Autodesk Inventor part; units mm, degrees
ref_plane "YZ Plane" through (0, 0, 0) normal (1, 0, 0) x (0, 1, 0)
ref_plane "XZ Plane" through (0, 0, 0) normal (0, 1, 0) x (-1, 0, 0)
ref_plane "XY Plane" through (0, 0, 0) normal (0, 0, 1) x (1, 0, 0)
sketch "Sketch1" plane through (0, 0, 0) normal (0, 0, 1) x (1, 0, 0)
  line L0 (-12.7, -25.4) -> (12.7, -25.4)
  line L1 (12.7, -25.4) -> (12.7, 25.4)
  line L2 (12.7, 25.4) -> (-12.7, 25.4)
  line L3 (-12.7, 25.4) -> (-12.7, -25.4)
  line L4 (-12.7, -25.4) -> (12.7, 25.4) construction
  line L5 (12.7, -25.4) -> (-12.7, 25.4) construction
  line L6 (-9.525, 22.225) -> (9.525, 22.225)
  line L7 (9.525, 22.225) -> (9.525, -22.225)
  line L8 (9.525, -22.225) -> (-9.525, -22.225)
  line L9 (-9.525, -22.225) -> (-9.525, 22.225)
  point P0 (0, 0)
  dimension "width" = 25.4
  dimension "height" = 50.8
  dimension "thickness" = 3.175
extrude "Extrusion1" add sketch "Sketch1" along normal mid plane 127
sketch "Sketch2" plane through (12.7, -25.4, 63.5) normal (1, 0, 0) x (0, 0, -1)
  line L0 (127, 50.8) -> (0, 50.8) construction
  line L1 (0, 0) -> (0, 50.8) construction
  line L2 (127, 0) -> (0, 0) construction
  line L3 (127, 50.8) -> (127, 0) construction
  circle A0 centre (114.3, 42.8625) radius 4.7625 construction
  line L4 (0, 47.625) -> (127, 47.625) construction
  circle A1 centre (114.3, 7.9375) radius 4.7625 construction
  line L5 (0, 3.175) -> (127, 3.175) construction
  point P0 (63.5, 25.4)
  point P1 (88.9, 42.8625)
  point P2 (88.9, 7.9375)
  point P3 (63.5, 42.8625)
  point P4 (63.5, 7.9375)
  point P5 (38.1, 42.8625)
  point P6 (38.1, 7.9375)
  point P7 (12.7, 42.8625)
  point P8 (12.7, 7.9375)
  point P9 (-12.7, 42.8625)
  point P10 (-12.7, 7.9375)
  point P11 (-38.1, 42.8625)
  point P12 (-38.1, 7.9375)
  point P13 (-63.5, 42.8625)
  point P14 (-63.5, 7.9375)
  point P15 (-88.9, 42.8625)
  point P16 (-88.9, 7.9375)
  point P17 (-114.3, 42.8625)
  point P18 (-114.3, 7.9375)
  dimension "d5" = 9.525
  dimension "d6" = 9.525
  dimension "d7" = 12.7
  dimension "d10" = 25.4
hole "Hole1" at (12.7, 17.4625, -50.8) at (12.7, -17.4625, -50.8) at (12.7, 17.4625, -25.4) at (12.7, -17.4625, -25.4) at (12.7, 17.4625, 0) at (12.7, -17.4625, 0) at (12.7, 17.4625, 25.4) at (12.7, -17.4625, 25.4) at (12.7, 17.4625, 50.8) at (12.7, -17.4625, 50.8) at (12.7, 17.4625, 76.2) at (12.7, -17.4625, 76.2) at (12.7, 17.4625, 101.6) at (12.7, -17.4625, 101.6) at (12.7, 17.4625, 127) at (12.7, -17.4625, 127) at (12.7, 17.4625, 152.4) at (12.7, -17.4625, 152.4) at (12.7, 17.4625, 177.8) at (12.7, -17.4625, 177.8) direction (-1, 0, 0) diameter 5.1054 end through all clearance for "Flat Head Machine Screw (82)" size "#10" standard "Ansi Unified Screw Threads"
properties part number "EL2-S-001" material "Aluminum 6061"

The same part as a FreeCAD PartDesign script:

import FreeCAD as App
import Part
import Sketcher
Q = App.Units.Quantity

doc = App.newDocument("Part")
body = doc.addObject("PartDesign::Body", "Body")

# Sketch on XY plane
sketch1 = body.newObject("Sketcher::SketchObject", "Sketch")
sketch1.AttachmentSupport = (doc.getObject("XY_Plane"), [""])
sketch1.MapMode = "FlatFace"
sketch1.addGeometry(Part.LineSegment(App.Vector(-13, 25, 0), App.Vector(-13, -25, 0)), False)
sketch1.addGeometry(Part.LineSegment(App.Vector(-13, -25, 0), App.Vector(13, -25, 0)), False)
sketch1.addGeometry(Part.LineSegment(App.Vector(13, -25, 0), App.Vector(13, 25, 0)), False)
sketch1.addGeometry(Part.LineSegment(App.Vector(13, 25, 0), App.Vector(-13, 25, 0)), False)
sketch1.addGeometry(Part.LineSegment(App.Vector(-10, -22, 0), App.Vector(-10, 22, 0)), False)
sketch1.addGeometry(Part.LineSegment(App.Vector(-10, 22, 0), App.Vector(10, 22, 0)), False)
sketch1.addGeometry(Part.LineSegment(App.Vector(10, 22, 0), App.Vector(10, -22, 0)), False)
sketch1.addGeometry(Part.LineSegment(App.Vector(10, -22, 0), App.Vector(-10, -22, 0)), False)
sketch1.addConstraint(Sketcher.Constraint("Coincident", 0, 2, 1, 1))
sketch1.addConstraint(Sketcher.Constraint("Coincident", 1, 2, 2, 1))
sketch1.addConstraint(Sketcher.Constraint("Coincident", 2, 2, 3, 1))
sketch1.addConstraint(Sketcher.Constraint("Coincident", 3, 2, 0, 1))
sketch1.addConstraint(Sketcher.Constraint("Coincident", 4, 2, 5, 1))
sketch1.addConstraint(Sketcher.Constraint("Coincident", 5, 2, 6, 1))
sketch1.addConstraint(Sketcher.Constraint("Coincident", 6, 2, 7, 1))
sketch1.addConstraint(Sketcher.Constraint("Coincident", 7, 2, 4, 1))
sketch1.addConstraint(Sketcher.Constraint("Vertical", 0))
sketch1.addConstraint(Sketcher.Constraint("Horizontal", 1))
sketch1.addConstraint(Sketcher.Constraint("Vertical", 2))
sketch1.addConstraint(Sketcher.Constraint("Horizontal", 3))
sketch1.addConstraint(Sketcher.Constraint("Vertical", 4))
sketch1.addConstraint(Sketcher.Constraint("Horizontal", 5))
sketch1.addConstraint(Sketcher.Constraint("Vertical", 6))
sketch1.addConstraint(Sketcher.Constraint("Horizontal", 7))
sketch1.addConstraint(Sketcher.Constraint("Symmetric", 0, 2, 2, 2, -1, 1))
sketch1.addConstraint(Sketcher.Constraint("Symmetric", 4, 2, 6, 2, -1, 1))
sketch1.addConstraint(Sketcher.Constraint("DistanceX", 1, 1, 1, 2, Q("1 in")))
sketch1.addConstraint(Sketcher.Constraint("DistanceY", 0, 2, 0, 1, Q("2 in")))
sketch1.addConstraint(Sketcher.Constraint("DistanceX", 3, 2, 4, 2, Q("0.125 in")))
sketch1.addConstraint(Sketcher.Constraint("DistanceY", 4, 2, 3, 2, Q("0.125 in")))
pad1 = body.newObject("PartDesign::Pad", "Pad")
pad1.Profile = sketch1
pad1.Length = Q("5 in")
pad1.Midplane = True

# Sketch on YZ plane
sketch2 = body.newObject("Sketcher::SketchObject", "Sketch001")
sketch2.AttachmentSupport = (doc.getObject("YZ_Plane"), [""])
sketch2.MapMode = "FlatFace"
sketch2.AttachmentOffset = App.Placement(App.Vector(0, 0, 0.5 * 25.4), App.Rotation())
sketch2.addGeometry(Part.Circle(App.Vector(17.5, -50.8, 0), App.Vector(0, 0, 1), 2.6), False)
sketch2.addGeometry(Part.Circle(App.Vector(-17.5, -50.8, 0), App.Vector(0, 0, 1), 2.6), False)
sketch2.addGeometry(Part.Circle(App.Vector(17.5, -25.4, 0), App.Vector(0, 0, 1), 2.6), False)
sketch2.addGeometry(Part.Circle(App.Vector(-17.5, -25.4, 0), App.Vector(0, 0, 1), 2.6), False)
sketch2.addGeometry(Part.Circle(App.Vector(17.5, 0, 0), App.Vector(0, 0, 1), 2.6), False)
sketch2.addGeometry(Part.Circle(App.Vector(-17.5, 0, 0), App.Vector(0, 0, 1), 2.6), False)
sketch2.addGeometry(Part.Circle(App.Vector(17.5, 25.4, 0), App.Vector(0, 0, 1), 2.6), False)
sketch2.addGeometry(Part.Circle(App.Vector(-17.5, 25.4, 0), App.Vector(0, 0, 1), 2.6), False)
sketch2.addGeometry(Part.Circle(App.Vector(17.5, 50.8, 0), App.Vector(0, 0, 1), 2.6), False)
sketch2.addGeometry(Part.Circle(App.Vector(-17.5, 50.8, 0), App.Vector(0, 0, 1), 2.6), False)
sketch2.addGeometry(Part.Circle(App.Vector(17.5, 76.2, 0), App.Vector(0, 0, 1), 2.6), False)
sketch2.addGeometry(Part.Circle(App.Vector(-17.5, 76.2, 0), App.Vector(0, 0, 1), 2.6), False)
sketch2.addGeometry(Part.Circle(App.Vector(17.5, 101.6, 0), App.Vector(0, 0, 1), 2.6), False)
sketch2.addGeometry(Part.Circle(App.Vector(-17.5, 101.6, 0), App.Vector(0, 0, 1), 2.6), False)
sketch2.addGeometry(Part.Circle(App.Vector(17.5, 127, 0), App.Vector(0, 0, 1), 2.6), False)
sketch2.addGeometry(Part.Circle(App.Vector(-17.5, 127, 0), App.Vector(0, 0, 1), 2.6), False)
sketch2.addGeometry(Part.Circle(App.Vector(17.5, 152.4, 0), App.Vector(0, 0, 1), 2.6), False)
sketch2.addGeometry(Part.Circle(App.Vector(-17.5, 152.4, 0), App.Vector(0, 0, 1), 2.6), False)
sketch2.addGeometry(Part.Circle(App.Vector(17.5, 177.8, 0), App.Vector(0, 0, 1), 2.6), False)
sketch2.addGeometry(Part.Circle(App.Vector(-17.5, 177.8, 0), App.Vector(0, 0, 1), 2.6), False)
sketch2.addConstraint(Sketcher.Constraint("Equal", 0, 1))
sketch2.addConstraint(Sketcher.Constraint("Equal", 1, 2))
sketch2.addConstraint(Sketcher.Constraint("Equal", 2, 3))
sketch2.addConstraint(Sketcher.Constraint("Equal", 3, 4))
sketch2.addConstraint(Sketcher.Constraint("Equal", 4, 5))
sketch2.addConstraint(Sketcher.Constraint("Equal", 5, 6))
sketch2.addConstraint(Sketcher.Constraint("Equal", 6, 7))
sketch2.addConstraint(Sketcher.Constraint("Equal", 7, 8))
sketch2.addConstraint(Sketcher.Constraint("Equal", 8, 9))
sketch2.addConstraint(Sketcher.Constraint("Equal", 9, 10))
sketch2.addConstraint(Sketcher.Constraint("Equal", 10, 11))
sketch2.addConstraint(Sketcher.Constraint("Equal", 11, 12))
sketch2.addConstraint(Sketcher.Constraint("Equal", 12, 13))
sketch2.addConstraint(Sketcher.Constraint("Equal", 13, 14))
sketch2.addConstraint(Sketcher.Constraint("Equal", 14, 15))
sketch2.addConstraint(Sketcher.Constraint("Equal", 15, 16))
sketch2.addConstraint(Sketcher.Constraint("Equal", 16, 17))
sketch2.addConstraint(Sketcher.Constraint("Equal", 17, 18))
sketch2.addConstraint(Sketcher.Constraint("Equal", 18, 19))
sketch2.addConstraint(Sketcher.Constraint("Symmetric", 4, 3, 5, 3, -1, 1))
sketch2.addConstraint(Sketcher.Constraint("Symmetric", 3, 3, 6, 3, -1, 1))
sketch2.addConstraint(Sketcher.Constraint("Symmetric", 2, 3, 7, 3, -1, 1))
sketch2.addConstraint(Sketcher.Constraint("Symmetric", 1, 3, 8, 3, -1, 1))
sketch2.addConstraint(Sketcher.Constraint("Symmetric", 0, 3, 9, 3, -1, 1))
sketch2.addConstraint(Sketcher.Constraint("Symmetric", 0, 3, 1, 3, -2))
sketch2.addConstraint(Sketcher.Constraint("Symmetric", 2, 3, 3, 3, -2))
sketch2.addConstraint(Sketcher.Constraint("Symmetric", 10, 3, 11, 3, -2))
sketch2.addConstraint(Sketcher.Constraint("Symmetric", 12, 3, 13, 3, -2))
sketch2.addConstraint(Sketcher.Constraint("Symmetric", 14, 3, 15, 3, -2))
sketch2.addConstraint(Sketcher.Constraint("Symmetric", 16, 3, 17, 3, -2))
sketch2.addConstraint(Sketcher.Constraint("Symmetric", 18, 3, 19, 3, -2))
sketch2.addConstraint(Sketcher.Constraint("PointOnObject", 4, 3, -1))
sketch2.addConstraint(Sketcher.Constraint("Vertical", 0, 3, 2, 3))
sketch2.addConstraint(Sketcher.Constraint("Vertical", 2, 3, 4, 3))
sketch2.addConstraint(Sketcher.Constraint("Vertical", 8, 3, 10, 3))
sketch2.addConstraint(Sketcher.Constraint("Vertical", 10, 3, 12, 3))
sketch2.addConstraint(Sketcher.Constraint("Vertical", 12, 3, 14, 3))
sketch2.addConstraint(Sketcher.Constraint("Vertical", 14, 3, 16, 3))
sketch2.addConstraint(Sketcher.Constraint("Vertical", 16, 3, 18, 3))
sketch2.addConstraint(Sketcher.Constraint("Diameter", 0, Q("0.201 in")))
sketch2.addConstraint(Sketcher.Constraint("DistanceY", 0, 3, -1, 1, Q("2 in")))
sketch2.addConstraint(Sketcher.Constraint("DistanceY", 2, 3, -1, 1, Q("1 in")))
sketch2.addConstraint(Sketcher.Constraint("DistanceY", -1, 1, 10, 3, Q("3 in")))
sketch2.addConstraint(Sketcher.Constraint("DistanceY", -1, 1, 12, 3, Q("4 in")))
sketch2.addConstraint(Sketcher.Constraint("DistanceY", -1, 1, 14, 3, Q("5 in")))
sketch2.addConstraint(Sketcher.Constraint("DistanceY", -1, 1, 16, 3, Q("6 in")))
sketch2.addConstraint(Sketcher.Constraint("DistanceY", -1, 1, 18, 3, Q("7 in")))
sketch2.addConstraint(Sketcher.Constraint("DistanceX", -1, 1, 0, 3, Q("0.6875 in")))
doc.recompute()
hole = body.newObject("PartDesign::Hole", "Hole")
hole.Profile = sketch2
hole.ThreadType = "None"
hole.Diameter = Q("0.201 in")
hole.DepthType = "ThroughAll"

doc.recompute()
